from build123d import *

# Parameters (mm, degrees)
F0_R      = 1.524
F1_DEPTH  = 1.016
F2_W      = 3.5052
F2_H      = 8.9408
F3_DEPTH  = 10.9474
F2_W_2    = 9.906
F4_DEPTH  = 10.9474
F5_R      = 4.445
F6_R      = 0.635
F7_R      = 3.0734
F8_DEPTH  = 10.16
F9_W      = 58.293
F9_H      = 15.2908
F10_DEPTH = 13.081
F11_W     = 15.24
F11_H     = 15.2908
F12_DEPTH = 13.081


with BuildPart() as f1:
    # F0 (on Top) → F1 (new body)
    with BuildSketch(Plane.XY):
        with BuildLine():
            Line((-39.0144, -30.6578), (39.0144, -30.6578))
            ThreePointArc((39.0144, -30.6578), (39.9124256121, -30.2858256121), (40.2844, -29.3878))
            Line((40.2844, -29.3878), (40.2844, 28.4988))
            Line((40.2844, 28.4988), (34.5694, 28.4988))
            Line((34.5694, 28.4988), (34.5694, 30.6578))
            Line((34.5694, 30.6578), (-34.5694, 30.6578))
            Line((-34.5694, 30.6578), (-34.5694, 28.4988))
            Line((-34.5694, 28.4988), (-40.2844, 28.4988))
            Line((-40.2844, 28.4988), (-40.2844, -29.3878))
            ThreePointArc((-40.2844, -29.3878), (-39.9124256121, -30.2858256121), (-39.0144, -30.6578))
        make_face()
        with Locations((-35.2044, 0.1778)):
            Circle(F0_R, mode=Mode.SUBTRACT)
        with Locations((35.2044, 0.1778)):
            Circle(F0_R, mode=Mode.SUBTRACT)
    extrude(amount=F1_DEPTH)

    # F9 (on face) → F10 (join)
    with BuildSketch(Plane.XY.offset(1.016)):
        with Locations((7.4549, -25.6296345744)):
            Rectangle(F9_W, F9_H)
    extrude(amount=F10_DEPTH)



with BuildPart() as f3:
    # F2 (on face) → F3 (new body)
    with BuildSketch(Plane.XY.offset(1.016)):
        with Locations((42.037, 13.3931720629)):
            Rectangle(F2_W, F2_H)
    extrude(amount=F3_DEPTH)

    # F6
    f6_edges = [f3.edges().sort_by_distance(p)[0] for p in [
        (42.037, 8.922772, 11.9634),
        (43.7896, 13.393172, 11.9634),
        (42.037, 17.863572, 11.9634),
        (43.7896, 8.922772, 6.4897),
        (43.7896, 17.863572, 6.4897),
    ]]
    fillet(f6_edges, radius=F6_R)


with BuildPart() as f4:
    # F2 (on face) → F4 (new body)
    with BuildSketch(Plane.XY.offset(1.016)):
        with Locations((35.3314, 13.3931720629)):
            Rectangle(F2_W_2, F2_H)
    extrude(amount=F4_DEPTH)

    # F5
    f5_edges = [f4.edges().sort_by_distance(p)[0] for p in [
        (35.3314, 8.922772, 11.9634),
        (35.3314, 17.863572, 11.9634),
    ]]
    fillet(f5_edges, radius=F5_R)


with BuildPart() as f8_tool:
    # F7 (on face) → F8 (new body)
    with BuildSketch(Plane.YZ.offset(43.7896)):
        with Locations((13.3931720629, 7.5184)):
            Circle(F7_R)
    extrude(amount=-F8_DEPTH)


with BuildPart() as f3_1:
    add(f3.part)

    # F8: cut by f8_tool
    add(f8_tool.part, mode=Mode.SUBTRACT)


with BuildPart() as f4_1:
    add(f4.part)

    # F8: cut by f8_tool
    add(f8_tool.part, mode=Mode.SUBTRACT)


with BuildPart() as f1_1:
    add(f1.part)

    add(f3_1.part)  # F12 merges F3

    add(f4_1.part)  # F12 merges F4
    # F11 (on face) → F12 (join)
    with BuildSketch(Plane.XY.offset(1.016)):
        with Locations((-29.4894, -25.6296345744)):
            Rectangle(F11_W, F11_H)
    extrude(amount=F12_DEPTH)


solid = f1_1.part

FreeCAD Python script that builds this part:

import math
import FreeCAD as App
import Part
import Sketcher

V = App.Vector
Q = App.Units.Quantity


def edges_at(feature, points):
    """Names of the edges that pass closest to the given points."""
    edges = feature.Shape.Edges
    near = lambda p: min(range(len(edges)), key=lambda i: edges[i].distToShape(Part.Vertex(*p))[0])
    return sorted({f"Edge{near(p) + 1}" for p in points})


def add_polygon(sketch, points):
    """Adds a closed chain of lines whose ends are joined by coincident constraints."""
    first, n = sketch.GeometryCount, len(points)
    for a, b in zip(points, points[1:] + points[:1]):
        sketch.addGeometry(Part.LineSegment(App.Vector(*a, 0), App.Vector(*b, 0)), False)
    for i in range(n):
        sketch.addConstraint(Sketcher.Constraint("Coincident", first + i, 2, first + (i + 1) % n, 1))

doc = App.newDocument("Part")
body = doc.addObject("PartDesign::Body", "Body")

sketch1 = body.newObject("Sketcher::SketchObject", "Sketch")
sketch1.AttachmentSupport = (doc.getObject("XY_Plane"), [""])
sketch1.MapMode = "FlatFace"
sketch1.addGeometry([
    Part.LineSegment(V(-39.0144, -30.6578, 0), V(39.0144, -30.6578, 0)),
    Part.ArcOfCircle(Part.Circle(V(39.0144, -29.3878, 0), V(0, 0, 1), 1.27), math.radians(-90), math.radians(0)),
    Part.LineSegment(V(40.2844, -29.3878, 0), V(40.2844, 28.4988, 0)),
    Part.LineSegment(V(40.2844, 28.4988, 0), V(34.5694, 28.4988, 0)),
    Part.LineSegment(V(34.5694, 28.4988, 0), V(34.5694, 30.6578, 0)),
    Part.LineSegment(V(34.5694, 30.6578, 0), V(-34.5694, 30.6578, 0)),
    Part.LineSegment(V(-34.5694, 30.6578, 0), V(-34.5694, 28.4988, 0)),
    Part.LineSegment(V(-34.5694, 28.4988, 0), V(-40.2844, 28.4988, 0)),
    Part.LineSegment(V(-40.2844, 28.4988, 0), V(-40.2844, -29.3878, 0)),
    Part.ArcOfCircle(Part.Circle(V(-39.0144, -29.3878, 0), V(0, 0, 1), 1.27), math.radians(180), math.radians(270)),
    Part.Circle(V(-35.2044, 0.1778, 0), V(0, 0, 1), 1.524),
    Part.Circle(V(35.2044, 0.1778, 0), V(0, 0, 1), 1.524),
], False)
sketch1.addConstraint([
    Sketcher.Constraint("Tangent", 0, 2, 1, 1),
    Sketcher.Constraint("Tangent", 1, 2, 2, 1),
    Sketcher.Constraint("Coincident", 2, 2, 3, 1),
    Sketcher.Constraint("Coincident", 3, 2, 4, 1),
    Sketcher.Constraint("Coincident", 4, 2, 5, 1),
    Sketcher.Constraint("Coincident", 5, 2, 6, 1),
    Sketcher.Constraint("Coincident", 6, 2, 7, 1),
    Sketcher.Constraint("Coincident", 7, 2, 8, 1),
    Sketcher.Constraint("Tangent", 8, 2, 9, 1),
    Sketcher.Constraint("Tangent", 9, 2, 0, 1),
    Sketcher.Constraint("Horizontal", 0),
    Sketcher.Constraint("Vertical", 2),
    Sketcher.Constraint("Horizontal", 3),
    Sketcher.Constraint("Vertical", 4),
    Sketcher.Constraint("Horizontal", 5),
    Sketcher.Constraint("Vertical", 6),
    Sketcher.Constraint("Horizontal", 7),
    Sketcher.Constraint("Vertical", 8),
    Sketcher.Constraint("Equal", 1, 9),
    Sketcher.Constraint("Equal", 10, 11),
    Sketcher.Constraint("Symmetric", 10, 3, 11, 3, -2),
    Sketcher.Constraint("Symmetric", 3, 2, 6, 2, -2),
    Sketcher.Constraint("Equal", 3, 7),
    Sketcher.Constraint("Diameter", 10, Q("0.12 in")),
    Sketcher.Constraint("Radius", 1, Q("0.05 in")),
    Sketcher.Constraint("DistanceX", 11, 3, 1, 2, Q("0.2 in")),
    Sketcher.Constraint("DistanceY", 11, 3, 4, 2, Q("1.2 in")),
    Sketcher.Constraint("DistanceX", 0, 1, 0, 2, Q("3.072 in")),
    Sketcher.Constraint("DistanceX", 3, 2, 3, 1, Q("0.225 in")),
    Sketcher.Constraint("DistanceY", 2, 1, 2, 2, Q("2.279 in")),
    Sketcher.Constraint("DistanceY", 4, 1, 4, 2, Q("0.085 in")),
    Sketcher.Constraint("DistanceY", 1, 3, -1, 1, Q("1.157 in")),
])
pad1 = body.newObject("PartDesign::Pad", "Pad")
pad1.Profile = sketch1
pad1.Length = Q("0.04 in")

sketch2 = body.newObject("Sketcher::SketchObject", "Sketch001")
sketch2.AttachmentSupport = (doc.getObject("XY_Plane"), [""])
sketch2.MapMode = "FlatFace"
sketch2.AttachmentOffset = App.Placement(V(0, 0, 0.04 * 25.4), App.Rotation())
add_polygon(sketch2, [(-21.6916, -17.984235), (-21.6916, -33.275035), (36.6014, -33.275035), (36.6014, -17.984235)])
sketch2.addConstraint([
    Sketcher.Constraint("Vertical", 0),
    Sketcher.Constraint("Horizontal", 1),
    Sketcher.Constraint("Vertical", 2),
    Sketcher.Constraint("Horizontal", 3),
    Sketcher.Constraint("DistanceX", 1, 1, 1, 2, Q("2.295 in")),
    Sketcher.Constraint("DistanceY", 0, 2, 0, 1, Q("0.602 in")),
    Sketcher.Constraint("DistanceX", 0, 2, -1, 1, Q("0.854 in")),
    Sketcher.Constraint("DistanceY", 0, 2, -1, 1, 33.275035),
])
pad2 = body.newObject("PartDesign::Pad", "Pad001")
pad2.Profile = sketch2
pad2.Length = Q("0.515 in")
body2 = doc.addObject("PartDesign::Body", "Body001")

sketch3 = body2.newObject("Sketcher::SketchObject", "Sketch002")
sketch3.AttachmentSupport = (doc.getObject("XY_Plane001"), [""])
sketch3.MapMode = "FlatFace"
sketch3.AttachmentOffset = App.Placement(V(0, 0, 0.04 * 25.4), App.Rotation())
add_polygon(sketch3, [(40.2844, 17.863572), (40.2844, 8.922772), (43.7896, 8.922772), (43.7896, 17.863572)])
sketch3.addConstraint([
    Sketcher.Constraint("Vertical", 0),
    Sketcher.Constraint("Horizontal", 1),
    Sketcher.Constraint("Vertical", 2),
    Sketcher.Constraint("Horizontal", 3),
    Sketcher.Constraint("DistanceX", 1, 1, 1, 2, Q("0.138 in")),
    Sketcher.Constraint("DistanceY", 0, 2, 0, 1, Q("0.352 in")),
    Sketcher.Constraint("DistanceX", -1, 1, 0, 2, Q("1.586 in")),
    Sketcher.Constraint("DistanceY", -1, 1, 0, 2, 8.922772),
])
pad3 = body2.newObject("PartDesign::Pad", "Pad002")
pad3.Profile = sketch3
pad3.Length = Q("0.431 in")
doc.recompute()

fillet = body2.newObject("PartDesign::Fillet", "Fillet")
fillet.Base = (pad3, edges_at(pad3, [
    (42.037, 8.923, 11.963),
    (43.79, 13.393, 11.963),
    (42.037, 17.864, 11.963),
    (43.79, 8.923, 6.49),
    (43.79, 17.864, 6.49),
]))
fillet.Radius = Q("0.025 in")
body3 = doc.addObject("PartDesign::Body", "Body002")

sketch4 = body3.newObject("Sketcher::SketchObject", "Sketch003")
sketch4.AttachmentSupport = (doc.getObject("XY_Plane002"), [""])
sketch4.MapMode = "FlatFace"
sketch4.AttachmentOffset = App.Placement(V(0, 0, 0.04 * 25.4), App.Rotation())
add_polygon(sketch4, [(30.3784, 17.863572), (30.3784, 8.922772), (40.2844, 8.922772), (40.2844, 17.863572)])
sketch4.addConstraint([
    Sketcher.Constraint("Vertical", 0),
    Sketcher.Constraint("Horizontal", 1),
    Sketcher.Constraint("Vertical", 2),
    Sketcher.Constraint("Horizontal", 3),
    Sketcher.Constraint("DistanceX", 1, 1, 1, 2, Q("0.39 in")),
    Sketcher.Constraint("DistanceY", 0, 2, 0, 1, Q("0.352 in")),
    Sketcher.Constraint("DistanceX", -1, 1, 0, 2, Q("1.196 in")),
    Sketcher.Constraint("DistanceY", -1, 1, 0, 2, 8.922772),
])
pad4 = body3.newObject("PartDesign::Pad", "Pad003")
pad4.Profile = sketch4
pad4.Length = Q("0.431 in")
doc.recompute()

fillet2 = body3.newObject("PartDesign::Fillet", "Fillet001")
fillet2.Base = (pad4, edges_at(pad4, [(35.331, 8.923, 11.963), (35.331, 17.864, 11.963)]))
fillet2.Radius = Q("0.175 in")
body4 = doc.addObject("PartDesign::Body", "Body003")

sketch5 = body4.newObject("Sketcher::SketchObject", "Sketch004")
sketch5.AttachmentSupport = (doc.getObject("YZ_Plane003"), [""])
sketch5.MapMode = "FlatFace"
sketch5.AttachmentOffset = App.Placement(V(0, 0, 1.724 * 25.4), App.Rotation())
sketch5.addGeometry(Part.Circle(V(13.393172, 7.5184, 0), V(0, 0, 1), 3.0734), False)
sketch5.addConstraint([
    Sketcher.Constraint("Diameter", 0, Q("0.242 in")),
    Sketcher.Constraint("DistanceY", -1, 1, 0, 3, Q("0.296 in")),
    Sketcher.Constraint("DistanceX", -1, 1, 0, 3, 13.393172),
])
pad5 = body4.newObject("PartDesign::Pad", "Pad004")
pad5.Profile = sketch5
pad5.Length = Q("0.4 in")
pad5.Reversed = True
doc.recompute()

body5 = doc.addObject("PartDesign::Body", "Body004")
body5.BaseFeature = body4
boolean = body2.newObject("PartDesign::Boolean", "Boolean")
boolean.Type = "Cut"
boolean.addObjects([body5])
doc.recompute()

boolean2 = body3.newObject("PartDesign::Boolean", "Boolean001")
boolean2.Type = "Cut"
boolean2.addObjects([body4])
body.AllowCompound = True
doc.recompute()

boolean3 = body.newObject("PartDesign::Boolean", "Boolean002")
boolean3.Type = "Fuse"
boolean3.addObjects([body2])
doc.recompute()

boolean4 = body.newObject("PartDesign::Boolean", "Boolean003")
boolean4.Type = "Fuse"
boolean4.addObjects([body3])

sketch6 = body.newObject("Sketcher::SketchObject", "Sketch005")
sketch6.AttachmentSupport = (doc.getObject("XY_Plane"), [""])
sketch6.MapMode = "FlatFace"
sketch6.AttachmentOffset = App.Placement(V(0, 0, 0.04 * 25.4), App.Rotation())
add_polygon(sketch6, [(-37.1094, -17.984235), (-37.1094, -33.275035), (-21.8694, -33.275035), (-21.8694, -17.984235)])
sketch6.addConstraint([
    Sketcher.Constraint("Vertical", 0),
    Sketcher.Constraint("Horizontal", 1),
    Sketcher.Constraint("Vertical", 2),
    Sketcher.Constraint("Horizontal", 3),
    Sketcher.Constraint("DistanceX", 1, 1, 1, 2, Q("0.6 in")),
    Sketcher.Constraint("DistanceY", 0, 2, 0, 1, Q("0.602 in")),
    Sketcher.Constraint("DistanceX", 0, 2, -1, 1, Q("1.461 in")),
    Sketcher.Constraint("DistanceY", 0, 2, -1, 1, 33.275035),
])
pad6 = body.newObject("PartDesign::Pad", "Pad005")
pad6.Profile = sketch6
pad6.Length = Q("0.515 in")

doc.recompute()
